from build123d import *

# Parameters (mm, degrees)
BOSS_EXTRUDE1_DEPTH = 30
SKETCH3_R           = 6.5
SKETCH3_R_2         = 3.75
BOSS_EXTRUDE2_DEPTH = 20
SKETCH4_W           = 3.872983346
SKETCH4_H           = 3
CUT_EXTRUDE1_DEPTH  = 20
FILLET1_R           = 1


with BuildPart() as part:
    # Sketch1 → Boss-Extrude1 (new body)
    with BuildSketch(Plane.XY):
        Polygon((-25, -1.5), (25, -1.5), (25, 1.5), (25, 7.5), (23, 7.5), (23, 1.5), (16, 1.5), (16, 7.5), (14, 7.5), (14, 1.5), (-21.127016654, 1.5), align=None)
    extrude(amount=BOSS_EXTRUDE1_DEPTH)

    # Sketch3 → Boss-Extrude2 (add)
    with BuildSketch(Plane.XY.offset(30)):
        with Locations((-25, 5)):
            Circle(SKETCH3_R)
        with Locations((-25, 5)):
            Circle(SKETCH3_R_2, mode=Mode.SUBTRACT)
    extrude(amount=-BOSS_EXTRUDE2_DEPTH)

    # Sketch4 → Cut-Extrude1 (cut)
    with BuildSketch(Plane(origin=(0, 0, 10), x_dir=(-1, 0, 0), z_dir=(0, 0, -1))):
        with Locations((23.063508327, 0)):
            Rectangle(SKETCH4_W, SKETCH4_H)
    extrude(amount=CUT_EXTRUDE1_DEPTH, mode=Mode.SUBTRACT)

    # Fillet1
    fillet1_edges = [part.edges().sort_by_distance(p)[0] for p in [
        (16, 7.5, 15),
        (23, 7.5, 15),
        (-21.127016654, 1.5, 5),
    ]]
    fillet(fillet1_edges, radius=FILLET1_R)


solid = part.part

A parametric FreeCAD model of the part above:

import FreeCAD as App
import Part
import Sketcher

V = App.Vector


def edges_at(feature, points):
    """Names of the edges that pass closest to the given points."""
    edges = feature.Shape.Edges
    near = lambda p: min(range(len(edges)), key=lambda i: edges[i].distToShape(Part.Vertex(*p))[0])
    return sorted({f"Edge{near(p) + 1}" for p in points})


def add_polygon(sketch, points):
    """Adds a closed chain of lines whose ends are joined by coincident constraints."""
    first, n = sketch.GeometryCount, len(points)
    for a, b in zip(points, points[1:] + points[:1]):
        sketch.addGeometry(Part.LineSegment(App.Vector(*a, 0), App.Vector(*b, 0)), False)
    for i in range(n):
        sketch.addConstraint(Sketcher.Constraint("Coincident", first + i, 2, first + (i + 1) % n, 1))

doc = App.newDocument("Part")
body = doc.addObject("PartDesign::Body", "Body")

# Sketch on XY plane
sketch1 = body.newObject("Sketcher::SketchObject", "Sketch")
sketch1.AttachmentSupport = (doc.getObject("XY_Plane"), [""])
sketch1.MapMode = "FlatFace"
add_polygon(sketch1, [(-25, -1.5), (25, -1.5), (25, 7.5), (23, 7.5), (23, 1.5), (16, 1.5), (16, 7.5), (14, 7.5), (14, 1.5), (-21.127017, 1.5)])  # lines 0-9
sketch1.addConstraint(Sketcher.Constraint("Horizontal", 0))
sketch1.addConstraint(Sketcher.Constraint("Vertical", 1))
sketch1.addConstraint(Sketcher.Constraint("Horizontal", 2))
sketch1.addConstraint(Sketcher.Constraint("Vertical", 3))
sketch1.addConstraint(Sketcher.Constraint("Horizontal", 4))
sketch1.addConstraint(Sketcher.Constraint("Vertical", 5))
sketch1.addConstraint(Sketcher.Constraint("Horizontal", 6))
sketch1.addConstraint(Sketcher.Constraint("Vertical", 7))
sketch1.addConstraint(Sketcher.Constraint("Horizontal", 8))
sketch1.addConstraint(Sketcher.Constraint("Horizontal", 2, 2, 5, 2))
sketch1.addConstraint(Sketcher.Constraint("Horizontal", 4, 2, 7, 2))
sketch1.addConstraint(Sketcher.Constraint("Equal", 2, 6))
sketch1.addConstraint(Sketcher.Constraint("DistanceX", 0, 1, 0, 2, 50.0))
sketch1.addConstraint(Sketcher.Constraint("DistanceX", 2, 2, 2, 1, 2.0))
sketch1.addConstraint(Sketcher.Constraint("DistanceX", 4, 2, 4, 1, 7.0))
sketch1.addConstraint(Sketcher.Constraint("DistanceY", 1, 1, 1, 2, 9.0))
sketch1.addConstraint(Sketcher.Constraint("DistanceY", 3, 2, 3, 1, 6.0))
sketch1.addConstraint(Sketcher.Constraint("DistanceX", -1, 1, 0, 2, 25.0))
sketch1.addConstraint(Sketcher.Constraint("DistanceY", 0, 2, -1, 1, 1.5))
sketch1.addConstraint(Sketcher.Constraint("Distance", 9, 4.898979))
pad1 = body.newObject("PartDesign::Pad", "Pad")
pad1.Profile = sketch1
pad1.Length = 30

# Sketch on XY plane
sketch2 = body.newObject("Sketcher::SketchObject", "Sketch001")
sketch2.AttachmentSupport = (doc.getObject("XY_Plane"), [""])
sketch2.MapMode = "FlatFace"
sketch2.AttachmentOffset = App.Placement(V(0, 0, 30), App.Rotation())
sketch2.addGeometry(Part.Circle(V(-25, 5, 0), V(0, 0, 1), 6.5), False)
sketch2.addGeometry(Part.Circle(V(-25, 5, 0), V(0, 0, 1), 3.75), False)
sketch2.addConstraint(Sketcher.Constraint("Coincident", 1, 3, 0, 3))
sketch2.addConstraint(Sketcher.Constraint("Diameter", 0, 13.0))
sketch2.addConstraint(Sketcher.Constraint("Diameter", 1, 7.5))
sketch2.addConstraint(Sketcher.Constraint("DistanceX", 0, 3, -1, 1, 25.0))
sketch2.addConstraint(Sketcher.Constraint("DistanceY", -1, 1, 0, 3, 5.0))
pad2 = body.newObject("PartDesign::Pad", "Pad001")
pad2.Profile = sketch2
pad2.Length = 20
pad2.Reversed = True

# Sketch on XY plane
sketch3 = body.newObject("Sketcher::SketchObject", "Sketch002")
sketch3.AttachmentSupport = (doc.getObject("XY_Plane"), [""])
sketch3.MapMode = "FlatFace"
sketch3.AttachmentOffset = App.Placement(V(0, 0, 10), App.Rotation())
add_polygon(sketch3, [(-21.127017, 1.5), (-21.127017, -1.5), (-25, -1.5), (-25, 1.5)])  # lines 0-3
sketch3.addConstraint(Sketcher.Constraint("Vertical", 0))
sketch3.addConstraint(Sketcher.Constraint("Horizontal", 1))
sketch3.addConstraint(Sketcher.Constraint("Vertical", 2))
sketch3.addConstraint(Sketcher.Constraint("Horizontal", 3))
sketch3.addConstraint(Sketcher.Constraint("DistanceY", 0, 2, 0, 1, 3.0))
sketch3.addConstraint(Sketcher.Constraint("DistanceX", 1, 2, -1, 1, 25.0))
sketch3.addConstraint(Sketcher.Constraint("DistanceY", 0, 2, -1, 1, 1.5))
sketch3.addConstraint(Sketcher.Constraint("DistanceX", 1, 2, 1, 1, 3.872983))
pocket1 = body.newObject("PartDesign::Pocket", "Pocket")
pocket1.Profile = sketch3
pocket1.Length = 20
doc.recompute()

fillet = body.newObject("PartDesign::Fillet", "Fillet")
fillet.Base = (pocket1, edges_at(pocket1, [(16, 7.5, 15), (23, 7.5, 15), (-21.127, 1.5, 5)]))
fillet.Radius = 1

doc.recompute()
